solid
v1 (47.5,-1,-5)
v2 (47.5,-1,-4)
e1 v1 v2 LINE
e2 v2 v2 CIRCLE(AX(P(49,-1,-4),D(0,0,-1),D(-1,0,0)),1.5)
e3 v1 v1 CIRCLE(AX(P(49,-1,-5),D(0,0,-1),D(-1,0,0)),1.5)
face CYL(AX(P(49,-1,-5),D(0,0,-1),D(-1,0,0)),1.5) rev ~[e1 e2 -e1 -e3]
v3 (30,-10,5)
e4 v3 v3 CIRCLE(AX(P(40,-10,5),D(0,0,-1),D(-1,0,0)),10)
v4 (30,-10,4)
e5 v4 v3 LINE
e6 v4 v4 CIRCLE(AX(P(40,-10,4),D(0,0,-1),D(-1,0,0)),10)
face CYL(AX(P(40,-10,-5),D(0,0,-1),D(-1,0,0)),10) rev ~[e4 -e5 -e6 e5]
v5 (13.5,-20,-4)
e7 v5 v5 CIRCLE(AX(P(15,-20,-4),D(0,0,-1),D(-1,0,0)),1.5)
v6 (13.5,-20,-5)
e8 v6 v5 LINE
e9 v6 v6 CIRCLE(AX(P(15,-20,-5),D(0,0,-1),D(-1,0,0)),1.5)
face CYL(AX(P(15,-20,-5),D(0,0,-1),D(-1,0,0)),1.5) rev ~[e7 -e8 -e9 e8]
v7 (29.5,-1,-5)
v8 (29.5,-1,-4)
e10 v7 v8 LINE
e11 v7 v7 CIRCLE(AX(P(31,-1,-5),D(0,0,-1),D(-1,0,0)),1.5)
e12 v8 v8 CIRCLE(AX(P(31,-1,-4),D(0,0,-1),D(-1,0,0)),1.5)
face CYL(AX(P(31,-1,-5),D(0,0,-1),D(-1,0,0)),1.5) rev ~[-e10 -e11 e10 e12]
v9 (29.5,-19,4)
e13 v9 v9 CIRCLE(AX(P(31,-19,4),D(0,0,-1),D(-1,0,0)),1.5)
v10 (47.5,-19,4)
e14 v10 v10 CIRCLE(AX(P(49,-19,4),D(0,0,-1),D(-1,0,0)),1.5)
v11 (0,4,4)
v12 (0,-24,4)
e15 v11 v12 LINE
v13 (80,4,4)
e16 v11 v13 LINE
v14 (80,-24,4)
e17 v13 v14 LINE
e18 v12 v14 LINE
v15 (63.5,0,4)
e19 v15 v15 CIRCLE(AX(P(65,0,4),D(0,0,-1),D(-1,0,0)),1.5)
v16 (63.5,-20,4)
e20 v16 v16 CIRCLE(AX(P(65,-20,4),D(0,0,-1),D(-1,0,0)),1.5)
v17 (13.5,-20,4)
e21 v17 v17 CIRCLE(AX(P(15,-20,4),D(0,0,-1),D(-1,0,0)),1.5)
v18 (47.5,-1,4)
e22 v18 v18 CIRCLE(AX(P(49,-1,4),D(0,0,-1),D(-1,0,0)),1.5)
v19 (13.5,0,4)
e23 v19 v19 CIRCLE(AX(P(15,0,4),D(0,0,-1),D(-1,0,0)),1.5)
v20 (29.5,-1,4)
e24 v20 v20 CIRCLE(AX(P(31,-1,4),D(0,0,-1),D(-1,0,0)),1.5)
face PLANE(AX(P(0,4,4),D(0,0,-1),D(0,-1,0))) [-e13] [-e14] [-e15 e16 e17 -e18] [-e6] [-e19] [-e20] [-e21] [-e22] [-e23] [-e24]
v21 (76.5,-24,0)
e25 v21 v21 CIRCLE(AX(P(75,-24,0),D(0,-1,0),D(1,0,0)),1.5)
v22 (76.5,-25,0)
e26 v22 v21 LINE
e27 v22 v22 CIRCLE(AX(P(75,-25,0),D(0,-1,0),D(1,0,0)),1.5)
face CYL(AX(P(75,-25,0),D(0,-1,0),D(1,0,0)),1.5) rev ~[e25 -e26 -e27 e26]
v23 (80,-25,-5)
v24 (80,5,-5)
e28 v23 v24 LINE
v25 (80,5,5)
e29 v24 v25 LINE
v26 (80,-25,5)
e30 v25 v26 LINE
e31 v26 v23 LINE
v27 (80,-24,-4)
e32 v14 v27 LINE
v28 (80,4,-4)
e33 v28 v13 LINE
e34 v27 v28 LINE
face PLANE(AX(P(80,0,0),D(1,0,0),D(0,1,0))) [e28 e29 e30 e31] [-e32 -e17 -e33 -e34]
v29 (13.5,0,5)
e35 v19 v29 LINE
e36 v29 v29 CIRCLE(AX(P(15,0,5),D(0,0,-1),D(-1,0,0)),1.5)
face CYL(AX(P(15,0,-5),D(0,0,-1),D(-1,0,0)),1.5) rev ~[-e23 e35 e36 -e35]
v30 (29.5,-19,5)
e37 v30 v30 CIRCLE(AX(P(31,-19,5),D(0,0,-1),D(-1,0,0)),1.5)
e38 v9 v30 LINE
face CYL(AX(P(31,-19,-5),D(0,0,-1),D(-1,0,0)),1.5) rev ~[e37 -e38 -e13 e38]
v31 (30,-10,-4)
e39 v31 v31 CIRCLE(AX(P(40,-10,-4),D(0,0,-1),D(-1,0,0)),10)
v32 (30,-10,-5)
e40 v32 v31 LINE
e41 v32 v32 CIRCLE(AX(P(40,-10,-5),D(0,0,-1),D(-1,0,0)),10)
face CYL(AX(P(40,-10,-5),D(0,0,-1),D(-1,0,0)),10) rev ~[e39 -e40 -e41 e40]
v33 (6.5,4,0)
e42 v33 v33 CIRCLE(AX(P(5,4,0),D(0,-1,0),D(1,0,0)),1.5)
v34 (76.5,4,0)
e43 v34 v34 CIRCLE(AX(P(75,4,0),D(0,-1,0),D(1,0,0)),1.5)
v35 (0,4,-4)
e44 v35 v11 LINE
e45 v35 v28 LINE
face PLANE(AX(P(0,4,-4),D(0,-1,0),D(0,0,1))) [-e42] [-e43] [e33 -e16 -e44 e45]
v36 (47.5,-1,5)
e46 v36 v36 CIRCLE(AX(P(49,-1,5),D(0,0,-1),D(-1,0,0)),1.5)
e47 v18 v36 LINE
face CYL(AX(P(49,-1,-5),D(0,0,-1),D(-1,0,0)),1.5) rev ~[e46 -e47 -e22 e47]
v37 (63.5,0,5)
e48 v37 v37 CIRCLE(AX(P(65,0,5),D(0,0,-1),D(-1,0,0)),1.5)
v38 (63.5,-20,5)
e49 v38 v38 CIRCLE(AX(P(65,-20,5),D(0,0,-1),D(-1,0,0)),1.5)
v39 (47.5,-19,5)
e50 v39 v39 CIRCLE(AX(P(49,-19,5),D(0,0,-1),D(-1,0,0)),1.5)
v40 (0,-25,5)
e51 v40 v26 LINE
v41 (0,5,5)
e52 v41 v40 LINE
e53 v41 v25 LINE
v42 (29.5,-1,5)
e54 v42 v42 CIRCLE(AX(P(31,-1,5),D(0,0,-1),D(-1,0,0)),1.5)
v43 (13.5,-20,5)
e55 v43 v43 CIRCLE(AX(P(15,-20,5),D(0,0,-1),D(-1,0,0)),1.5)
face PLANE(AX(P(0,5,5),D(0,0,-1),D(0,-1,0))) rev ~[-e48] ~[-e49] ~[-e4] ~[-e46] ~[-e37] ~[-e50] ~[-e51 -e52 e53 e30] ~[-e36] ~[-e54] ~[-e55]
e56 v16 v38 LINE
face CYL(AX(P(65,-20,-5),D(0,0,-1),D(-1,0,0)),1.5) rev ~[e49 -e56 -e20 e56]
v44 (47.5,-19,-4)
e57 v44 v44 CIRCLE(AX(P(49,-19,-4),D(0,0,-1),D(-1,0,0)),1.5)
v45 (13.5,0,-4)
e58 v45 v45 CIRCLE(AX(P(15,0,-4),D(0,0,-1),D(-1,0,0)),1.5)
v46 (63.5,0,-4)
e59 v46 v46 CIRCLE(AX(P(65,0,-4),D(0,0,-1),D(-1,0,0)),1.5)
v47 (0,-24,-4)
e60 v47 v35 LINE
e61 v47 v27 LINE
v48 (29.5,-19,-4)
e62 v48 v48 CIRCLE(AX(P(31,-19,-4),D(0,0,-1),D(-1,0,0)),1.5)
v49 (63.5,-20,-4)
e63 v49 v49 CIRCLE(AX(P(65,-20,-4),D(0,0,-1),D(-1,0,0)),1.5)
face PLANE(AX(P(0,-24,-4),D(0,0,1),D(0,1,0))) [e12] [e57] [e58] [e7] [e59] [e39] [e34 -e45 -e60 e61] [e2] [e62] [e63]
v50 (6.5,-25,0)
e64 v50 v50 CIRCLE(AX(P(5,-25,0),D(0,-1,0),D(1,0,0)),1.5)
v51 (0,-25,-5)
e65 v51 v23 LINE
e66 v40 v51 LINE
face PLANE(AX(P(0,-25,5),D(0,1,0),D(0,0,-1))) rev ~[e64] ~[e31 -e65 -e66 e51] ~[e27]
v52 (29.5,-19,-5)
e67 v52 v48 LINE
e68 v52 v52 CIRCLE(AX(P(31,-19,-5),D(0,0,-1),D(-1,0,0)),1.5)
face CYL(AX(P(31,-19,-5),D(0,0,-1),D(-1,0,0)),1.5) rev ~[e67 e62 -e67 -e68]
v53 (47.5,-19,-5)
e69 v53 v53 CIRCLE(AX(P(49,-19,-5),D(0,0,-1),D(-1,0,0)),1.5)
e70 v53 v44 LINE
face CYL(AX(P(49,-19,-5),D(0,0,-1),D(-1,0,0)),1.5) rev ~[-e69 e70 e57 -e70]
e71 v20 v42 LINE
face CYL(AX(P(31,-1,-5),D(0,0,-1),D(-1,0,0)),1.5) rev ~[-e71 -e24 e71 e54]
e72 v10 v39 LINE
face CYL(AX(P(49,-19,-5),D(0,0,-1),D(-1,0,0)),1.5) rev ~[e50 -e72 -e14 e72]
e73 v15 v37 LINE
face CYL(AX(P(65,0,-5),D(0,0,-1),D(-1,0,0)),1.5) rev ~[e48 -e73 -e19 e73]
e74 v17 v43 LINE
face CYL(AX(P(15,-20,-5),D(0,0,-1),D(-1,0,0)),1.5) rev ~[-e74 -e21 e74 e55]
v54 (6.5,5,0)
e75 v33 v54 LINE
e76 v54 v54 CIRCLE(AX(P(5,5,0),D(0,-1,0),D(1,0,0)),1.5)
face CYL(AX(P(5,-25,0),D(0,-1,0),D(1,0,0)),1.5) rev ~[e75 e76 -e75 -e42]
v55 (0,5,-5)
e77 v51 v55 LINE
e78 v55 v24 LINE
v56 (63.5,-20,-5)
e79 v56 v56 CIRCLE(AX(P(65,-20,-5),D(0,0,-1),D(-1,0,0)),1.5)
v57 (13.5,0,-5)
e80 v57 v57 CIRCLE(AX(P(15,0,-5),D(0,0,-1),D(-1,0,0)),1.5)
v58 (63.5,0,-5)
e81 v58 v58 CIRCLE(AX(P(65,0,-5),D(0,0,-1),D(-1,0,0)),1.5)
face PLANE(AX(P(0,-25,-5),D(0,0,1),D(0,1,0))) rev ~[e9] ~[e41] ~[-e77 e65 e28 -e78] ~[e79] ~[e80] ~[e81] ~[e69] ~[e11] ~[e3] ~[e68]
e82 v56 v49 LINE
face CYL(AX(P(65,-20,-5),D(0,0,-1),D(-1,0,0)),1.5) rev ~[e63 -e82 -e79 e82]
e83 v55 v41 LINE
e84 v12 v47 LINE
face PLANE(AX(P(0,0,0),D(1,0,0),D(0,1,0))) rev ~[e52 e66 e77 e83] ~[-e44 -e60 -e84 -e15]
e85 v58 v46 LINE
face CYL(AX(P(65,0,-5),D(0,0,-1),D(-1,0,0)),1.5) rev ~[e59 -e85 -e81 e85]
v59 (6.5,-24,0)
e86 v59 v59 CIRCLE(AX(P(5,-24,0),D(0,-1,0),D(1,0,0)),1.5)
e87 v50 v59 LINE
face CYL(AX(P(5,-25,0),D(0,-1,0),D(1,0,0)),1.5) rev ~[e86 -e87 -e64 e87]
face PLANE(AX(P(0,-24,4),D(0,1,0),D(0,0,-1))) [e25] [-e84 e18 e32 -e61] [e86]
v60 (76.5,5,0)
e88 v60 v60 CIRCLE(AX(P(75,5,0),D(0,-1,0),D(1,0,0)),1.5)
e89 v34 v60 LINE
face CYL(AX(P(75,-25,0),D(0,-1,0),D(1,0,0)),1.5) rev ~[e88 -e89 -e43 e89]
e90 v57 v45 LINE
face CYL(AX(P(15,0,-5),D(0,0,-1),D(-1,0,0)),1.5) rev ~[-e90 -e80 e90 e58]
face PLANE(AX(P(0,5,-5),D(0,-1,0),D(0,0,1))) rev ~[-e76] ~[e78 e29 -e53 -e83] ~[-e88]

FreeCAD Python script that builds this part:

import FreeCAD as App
import Part
import Sketcher

V = App.Vector


def add_polygon(sketch, points):
    """Adds a closed chain of lines whose ends are joined by coincident constraints."""
    first, n = sketch.GeometryCount, len(points)
    for a, b in zip(points, points[1:] + points[:1]):
        sketch.addGeometry(Part.LineSegment(App.Vector(*a, 0), App.Vector(*b, 0)), False)
    for i in range(n):
        sketch.addConstraint(Sketcher.Constraint("Coincident", first + i, 2, first + (i + 1) % n, 1))

doc = App.newDocument("Part")
params = doc.addObject("Spreadsheet::Sheet", "Params")
for row, (alias, value) in enumerate([
    ("sketch1_width", "30 mm"),
    ("sketch1_height", "10 mm"),
    ("pad1_length", "80 mm"),
    ("sketch2_diameter", "20 mm"),
    ("sketch2_diameter2", "3 mm"),
    ("pocket1_length", "60 mm"),
    ("sketch3_diameter", "3 mm"),
    ("pocket2_length", "60 mm"),
    ("sketch4_diameter", "3 mm"),
    ("pocket3_length", "43 mm"),
], start=1):
    params.set(f"A{row}", alias)
    params.set(f"B{row}", "=" + value)
    params.setAlias(f"B{row}", alias)

body = doc.addObject("PartDesign::Body", "Body")

# Sketch on YZ plane
sketch1 = doc.addObject("Sketcher::SketchObject", "Sketch")
body.addObject(sketch1)
sketch1.AttachmentSupport = (doc.YZ_Plane, [""])
sketch1.MapMode = "FlatFace"
add_polygon(sketch1, [(5, -5), (5, 5), (-25, 5), (-25, -5)])  # lines 0-3
add_polygon(sketch1, [(-24, 4), (4, 4), (4, -4), (-24, -4)])  # lines 4-7
sketch1.addConstraint([
    Sketcher.Constraint("Vertical", 0),
    Sketcher.Constraint("Horizontal", 1),
    Sketcher.Constraint("Vertical", 2),
    Sketcher.Constraint("Horizontal", 3),
    Sketcher.Constraint("Horizontal", 4),
    Sketcher.Constraint("Vertical", 5),
    Sketcher.Constraint("Horizontal", 6),
    Sketcher.Constraint("Vertical", 7),
    Sketcher.Constraint("DistanceX", 1, 2, 1, 1, 30.0),
    Sketcher.Constraint("DistanceY", 0, 1, 0, 2, 10.0),
    Sketcher.Constraint("DistanceX", -1, 1, 0, 2, 5.0),
    Sketcher.Constraint("DistanceY", -1, 1, 0, 2, 5.0),
    Sketcher.Constraint("DistanceX", 4, 2, 0, 2, 1.0),
    Sketcher.Constraint("DistanceY", 4, 2, 0, 2, 1.0),
    Sketcher.Constraint("DistanceY", 3, 2, 5, 2, 1.0),
    Sketcher.Constraint("DistanceX", 2, 2, 6, 2, 1.0),
])
sketch1.setExpression("Constraints[16]", "Params.sketch1_width")
sketch1.setExpression("Constraints[17]", "Params.sketch1_height")
pad1 = doc.addObject("PartDesign::Pad", "Pad")
body.addObject(pad1)
pad1.Profile = sketch1
pad1.setExpression("Length", "Params.pad1_length")

# Sketch on XY plane
sketch2 = doc.addObject("Sketcher::SketchObject", "Sketch001")
body.addObject(sketch2)
sketch2.AttachmentSupport = (doc.XY_Plane, [""])
sketch2.MapMode = "FlatFace"
sketch2.AttachmentOffset = App.Placement(V(0, 0, -5), App.Rotation())
sketch2.addGeometry([
    Part.Circle(V(40, -10, 0), V(0, 0, 1), 10),  # 0
    Part.Circle(V(49, -1, 0), V(0, 0, 1), 1.5),  # 1
    Part.Circle(V(31, -1, 0), V(0, 0, 1), 1.5),  # 2
    Part.Circle(V(49, -19, 0), V(0, 0, 1), 1.5),  # 3
    Part.Circle(V(31, -19, 0), V(0, 0, 1), 1.5),  # 4
], False)
sketch2.addConstraint([
    Sketcher.Constraint("Equal", 1, 2),
    Sketcher.Constraint("Equal", 2, 3),
    Sketcher.Constraint("Equal", 3, 4),
    Sketcher.Constraint("Horizontal", 1, 3, 2, 3),
    Sketcher.Constraint("Horizontal", 3, 3, 4, 3),
    Sketcher.Constraint("Vertical", 1, 3, 3, 3),
    Sketcher.Constraint("Vertical", 2, 3, 4, 3),
    Sketcher.Constraint("Diameter", 0, 20.0),
    Sketcher.Constraint("Diameter", 1, 3.0),
    Sketcher.Constraint("DistanceX", -1, 1, 0, 3, 40.0),
    Sketcher.Constraint("DistanceX", 0, 3, 1, 3, 9.0),
    Sketcher.Constraint("DistanceY", 0, 3, 1, 3, 9.0),
    Sketcher.Constraint("DistanceX", 2, 3, 0, 3, 9.0),
    Sketcher.Constraint("DistanceY", 3, 3, 0, 3, 9.0),
    Sketcher.Constraint("DistanceY", 0, 3, -1, 1, 10.0),
])
sketch2.setExpression("Constraints[7]", "Params.sketch2_diameter")
sketch2.setExpression("Constraints[8]", "Params.sketch2_diameter2")
pocket1 = doc.addObject("PartDesign::Pocket", "Pocket")
body.addObject(pocket1)
pocket1.Profile = sketch2
pocket1.setExpression("Length", "Params.pocket1_length")
pocket1.Reversed = True

# Sketch on XZ plane
sketch3 = doc.addObject("Sketcher::SketchObject", "Sketch002")
body.addObject(sketch3)
sketch3.AttachmentSupport = (doc.XZ_Plane, [""])
sketch3.MapMode = "FlatFace"
sketch3.AttachmentOffset = App.Placement(V(0, 0, 25), App.Rotation())
sketch3.addGeometry([
    Part.Circle(V(5, 0, 0), V(0, 0, 1), 1.5),
    Part.Circle(V(75, 0, 0), V(0, 0, 1), 1.5),
], False)
sketch3.addConstraint([
    Sketcher.Constraint("Equal", 0, 1),
    Sketcher.Constraint("PointOnObject", 0, 3, -1),
    Sketcher.Constraint("PointOnObject", 1, 3, -1),
    Sketcher.Constraint("Diameter", 0, 3.0),
    Sketcher.Constraint("DistanceX", -1, 1, 0, 3, 5.0),
    Sketcher.Constraint("DistanceX", -1, 1, 1, 3, 75.0),
])
sketch3.setExpression("Constraints[3]", "Params.sketch3_diameter")
pocket2 = doc.addObject("PartDesign::Pocket", "Pocket001")
body.addObject(pocket2)
pocket2.Profile = sketch3
pocket2.setExpression("Length", "Params.pocket2_length")

# Sketch on XY plane
sketch4 = doc.addObject("Sketcher::SketchObject", "Sketch003")
body.addObject(sketch4)
sketch4.AttachmentSupport = (doc.XY_Plane, [""])
sketch4.MapMode = "FlatFace"
sketch4.AttachmentOffset = App.Placement(V(0, 0, -5), App.Rotation())
sketch4.addGeometry([
    Part.Circle(V(15, -20, 0), V(0, 0, 1), 1.5),
    Part.Circle(V(15, 0, 0), V(0, 0, 1), 1.5),
    Part.Circle(V(65, -20, 0), V(0, 0, 1), 1.5),
    Part.Circle(V(65, 0, 0), V(0, 0, 1), 1.5),
], False)
sketch4.addConstraint([
    Sketcher.Constraint("Equal", 0, 1),
    Sketcher.Constraint("Equal", 1, 2),
    Sketcher.Constraint("Equal", 2, 3),
    Sketcher.Constraint("PointOnObject", 1, 3, -1),
    Sketcher.Constraint("PointOnObject", 3, 3, -1),
    Sketcher.Constraint("Horizontal", 0, 3, 2, 3),
    Sketcher.Constraint("Vertical", 0, 3, 1, 3),
    Sketcher.Constraint("Vertical", 2, 3, 3, 3),
    Sketcher.Constraint("Diameter", 0, 3.0),
    Sketcher.Constraint("DistanceX", -1, 1, 0, 3, 15.0),
    Sketcher.Constraint("DistanceY", 0, 3, -1, 1, 20.0),
    Sketcher.Constraint("DistanceX", -1, 1, 2, 3, 65.0),
])
sketch4.setExpression("Constraints[8]", "Params.sketch4_diameter")
pocket3 = doc.addObject("PartDesign::Pocket", "Pocket002")
body.addObject(pocket3)
pocket3.Profile = sketch4
pocket3.setExpression("Length", "Params.pocket3_length")
pocket3.Reversed = True

doc.recompute()
